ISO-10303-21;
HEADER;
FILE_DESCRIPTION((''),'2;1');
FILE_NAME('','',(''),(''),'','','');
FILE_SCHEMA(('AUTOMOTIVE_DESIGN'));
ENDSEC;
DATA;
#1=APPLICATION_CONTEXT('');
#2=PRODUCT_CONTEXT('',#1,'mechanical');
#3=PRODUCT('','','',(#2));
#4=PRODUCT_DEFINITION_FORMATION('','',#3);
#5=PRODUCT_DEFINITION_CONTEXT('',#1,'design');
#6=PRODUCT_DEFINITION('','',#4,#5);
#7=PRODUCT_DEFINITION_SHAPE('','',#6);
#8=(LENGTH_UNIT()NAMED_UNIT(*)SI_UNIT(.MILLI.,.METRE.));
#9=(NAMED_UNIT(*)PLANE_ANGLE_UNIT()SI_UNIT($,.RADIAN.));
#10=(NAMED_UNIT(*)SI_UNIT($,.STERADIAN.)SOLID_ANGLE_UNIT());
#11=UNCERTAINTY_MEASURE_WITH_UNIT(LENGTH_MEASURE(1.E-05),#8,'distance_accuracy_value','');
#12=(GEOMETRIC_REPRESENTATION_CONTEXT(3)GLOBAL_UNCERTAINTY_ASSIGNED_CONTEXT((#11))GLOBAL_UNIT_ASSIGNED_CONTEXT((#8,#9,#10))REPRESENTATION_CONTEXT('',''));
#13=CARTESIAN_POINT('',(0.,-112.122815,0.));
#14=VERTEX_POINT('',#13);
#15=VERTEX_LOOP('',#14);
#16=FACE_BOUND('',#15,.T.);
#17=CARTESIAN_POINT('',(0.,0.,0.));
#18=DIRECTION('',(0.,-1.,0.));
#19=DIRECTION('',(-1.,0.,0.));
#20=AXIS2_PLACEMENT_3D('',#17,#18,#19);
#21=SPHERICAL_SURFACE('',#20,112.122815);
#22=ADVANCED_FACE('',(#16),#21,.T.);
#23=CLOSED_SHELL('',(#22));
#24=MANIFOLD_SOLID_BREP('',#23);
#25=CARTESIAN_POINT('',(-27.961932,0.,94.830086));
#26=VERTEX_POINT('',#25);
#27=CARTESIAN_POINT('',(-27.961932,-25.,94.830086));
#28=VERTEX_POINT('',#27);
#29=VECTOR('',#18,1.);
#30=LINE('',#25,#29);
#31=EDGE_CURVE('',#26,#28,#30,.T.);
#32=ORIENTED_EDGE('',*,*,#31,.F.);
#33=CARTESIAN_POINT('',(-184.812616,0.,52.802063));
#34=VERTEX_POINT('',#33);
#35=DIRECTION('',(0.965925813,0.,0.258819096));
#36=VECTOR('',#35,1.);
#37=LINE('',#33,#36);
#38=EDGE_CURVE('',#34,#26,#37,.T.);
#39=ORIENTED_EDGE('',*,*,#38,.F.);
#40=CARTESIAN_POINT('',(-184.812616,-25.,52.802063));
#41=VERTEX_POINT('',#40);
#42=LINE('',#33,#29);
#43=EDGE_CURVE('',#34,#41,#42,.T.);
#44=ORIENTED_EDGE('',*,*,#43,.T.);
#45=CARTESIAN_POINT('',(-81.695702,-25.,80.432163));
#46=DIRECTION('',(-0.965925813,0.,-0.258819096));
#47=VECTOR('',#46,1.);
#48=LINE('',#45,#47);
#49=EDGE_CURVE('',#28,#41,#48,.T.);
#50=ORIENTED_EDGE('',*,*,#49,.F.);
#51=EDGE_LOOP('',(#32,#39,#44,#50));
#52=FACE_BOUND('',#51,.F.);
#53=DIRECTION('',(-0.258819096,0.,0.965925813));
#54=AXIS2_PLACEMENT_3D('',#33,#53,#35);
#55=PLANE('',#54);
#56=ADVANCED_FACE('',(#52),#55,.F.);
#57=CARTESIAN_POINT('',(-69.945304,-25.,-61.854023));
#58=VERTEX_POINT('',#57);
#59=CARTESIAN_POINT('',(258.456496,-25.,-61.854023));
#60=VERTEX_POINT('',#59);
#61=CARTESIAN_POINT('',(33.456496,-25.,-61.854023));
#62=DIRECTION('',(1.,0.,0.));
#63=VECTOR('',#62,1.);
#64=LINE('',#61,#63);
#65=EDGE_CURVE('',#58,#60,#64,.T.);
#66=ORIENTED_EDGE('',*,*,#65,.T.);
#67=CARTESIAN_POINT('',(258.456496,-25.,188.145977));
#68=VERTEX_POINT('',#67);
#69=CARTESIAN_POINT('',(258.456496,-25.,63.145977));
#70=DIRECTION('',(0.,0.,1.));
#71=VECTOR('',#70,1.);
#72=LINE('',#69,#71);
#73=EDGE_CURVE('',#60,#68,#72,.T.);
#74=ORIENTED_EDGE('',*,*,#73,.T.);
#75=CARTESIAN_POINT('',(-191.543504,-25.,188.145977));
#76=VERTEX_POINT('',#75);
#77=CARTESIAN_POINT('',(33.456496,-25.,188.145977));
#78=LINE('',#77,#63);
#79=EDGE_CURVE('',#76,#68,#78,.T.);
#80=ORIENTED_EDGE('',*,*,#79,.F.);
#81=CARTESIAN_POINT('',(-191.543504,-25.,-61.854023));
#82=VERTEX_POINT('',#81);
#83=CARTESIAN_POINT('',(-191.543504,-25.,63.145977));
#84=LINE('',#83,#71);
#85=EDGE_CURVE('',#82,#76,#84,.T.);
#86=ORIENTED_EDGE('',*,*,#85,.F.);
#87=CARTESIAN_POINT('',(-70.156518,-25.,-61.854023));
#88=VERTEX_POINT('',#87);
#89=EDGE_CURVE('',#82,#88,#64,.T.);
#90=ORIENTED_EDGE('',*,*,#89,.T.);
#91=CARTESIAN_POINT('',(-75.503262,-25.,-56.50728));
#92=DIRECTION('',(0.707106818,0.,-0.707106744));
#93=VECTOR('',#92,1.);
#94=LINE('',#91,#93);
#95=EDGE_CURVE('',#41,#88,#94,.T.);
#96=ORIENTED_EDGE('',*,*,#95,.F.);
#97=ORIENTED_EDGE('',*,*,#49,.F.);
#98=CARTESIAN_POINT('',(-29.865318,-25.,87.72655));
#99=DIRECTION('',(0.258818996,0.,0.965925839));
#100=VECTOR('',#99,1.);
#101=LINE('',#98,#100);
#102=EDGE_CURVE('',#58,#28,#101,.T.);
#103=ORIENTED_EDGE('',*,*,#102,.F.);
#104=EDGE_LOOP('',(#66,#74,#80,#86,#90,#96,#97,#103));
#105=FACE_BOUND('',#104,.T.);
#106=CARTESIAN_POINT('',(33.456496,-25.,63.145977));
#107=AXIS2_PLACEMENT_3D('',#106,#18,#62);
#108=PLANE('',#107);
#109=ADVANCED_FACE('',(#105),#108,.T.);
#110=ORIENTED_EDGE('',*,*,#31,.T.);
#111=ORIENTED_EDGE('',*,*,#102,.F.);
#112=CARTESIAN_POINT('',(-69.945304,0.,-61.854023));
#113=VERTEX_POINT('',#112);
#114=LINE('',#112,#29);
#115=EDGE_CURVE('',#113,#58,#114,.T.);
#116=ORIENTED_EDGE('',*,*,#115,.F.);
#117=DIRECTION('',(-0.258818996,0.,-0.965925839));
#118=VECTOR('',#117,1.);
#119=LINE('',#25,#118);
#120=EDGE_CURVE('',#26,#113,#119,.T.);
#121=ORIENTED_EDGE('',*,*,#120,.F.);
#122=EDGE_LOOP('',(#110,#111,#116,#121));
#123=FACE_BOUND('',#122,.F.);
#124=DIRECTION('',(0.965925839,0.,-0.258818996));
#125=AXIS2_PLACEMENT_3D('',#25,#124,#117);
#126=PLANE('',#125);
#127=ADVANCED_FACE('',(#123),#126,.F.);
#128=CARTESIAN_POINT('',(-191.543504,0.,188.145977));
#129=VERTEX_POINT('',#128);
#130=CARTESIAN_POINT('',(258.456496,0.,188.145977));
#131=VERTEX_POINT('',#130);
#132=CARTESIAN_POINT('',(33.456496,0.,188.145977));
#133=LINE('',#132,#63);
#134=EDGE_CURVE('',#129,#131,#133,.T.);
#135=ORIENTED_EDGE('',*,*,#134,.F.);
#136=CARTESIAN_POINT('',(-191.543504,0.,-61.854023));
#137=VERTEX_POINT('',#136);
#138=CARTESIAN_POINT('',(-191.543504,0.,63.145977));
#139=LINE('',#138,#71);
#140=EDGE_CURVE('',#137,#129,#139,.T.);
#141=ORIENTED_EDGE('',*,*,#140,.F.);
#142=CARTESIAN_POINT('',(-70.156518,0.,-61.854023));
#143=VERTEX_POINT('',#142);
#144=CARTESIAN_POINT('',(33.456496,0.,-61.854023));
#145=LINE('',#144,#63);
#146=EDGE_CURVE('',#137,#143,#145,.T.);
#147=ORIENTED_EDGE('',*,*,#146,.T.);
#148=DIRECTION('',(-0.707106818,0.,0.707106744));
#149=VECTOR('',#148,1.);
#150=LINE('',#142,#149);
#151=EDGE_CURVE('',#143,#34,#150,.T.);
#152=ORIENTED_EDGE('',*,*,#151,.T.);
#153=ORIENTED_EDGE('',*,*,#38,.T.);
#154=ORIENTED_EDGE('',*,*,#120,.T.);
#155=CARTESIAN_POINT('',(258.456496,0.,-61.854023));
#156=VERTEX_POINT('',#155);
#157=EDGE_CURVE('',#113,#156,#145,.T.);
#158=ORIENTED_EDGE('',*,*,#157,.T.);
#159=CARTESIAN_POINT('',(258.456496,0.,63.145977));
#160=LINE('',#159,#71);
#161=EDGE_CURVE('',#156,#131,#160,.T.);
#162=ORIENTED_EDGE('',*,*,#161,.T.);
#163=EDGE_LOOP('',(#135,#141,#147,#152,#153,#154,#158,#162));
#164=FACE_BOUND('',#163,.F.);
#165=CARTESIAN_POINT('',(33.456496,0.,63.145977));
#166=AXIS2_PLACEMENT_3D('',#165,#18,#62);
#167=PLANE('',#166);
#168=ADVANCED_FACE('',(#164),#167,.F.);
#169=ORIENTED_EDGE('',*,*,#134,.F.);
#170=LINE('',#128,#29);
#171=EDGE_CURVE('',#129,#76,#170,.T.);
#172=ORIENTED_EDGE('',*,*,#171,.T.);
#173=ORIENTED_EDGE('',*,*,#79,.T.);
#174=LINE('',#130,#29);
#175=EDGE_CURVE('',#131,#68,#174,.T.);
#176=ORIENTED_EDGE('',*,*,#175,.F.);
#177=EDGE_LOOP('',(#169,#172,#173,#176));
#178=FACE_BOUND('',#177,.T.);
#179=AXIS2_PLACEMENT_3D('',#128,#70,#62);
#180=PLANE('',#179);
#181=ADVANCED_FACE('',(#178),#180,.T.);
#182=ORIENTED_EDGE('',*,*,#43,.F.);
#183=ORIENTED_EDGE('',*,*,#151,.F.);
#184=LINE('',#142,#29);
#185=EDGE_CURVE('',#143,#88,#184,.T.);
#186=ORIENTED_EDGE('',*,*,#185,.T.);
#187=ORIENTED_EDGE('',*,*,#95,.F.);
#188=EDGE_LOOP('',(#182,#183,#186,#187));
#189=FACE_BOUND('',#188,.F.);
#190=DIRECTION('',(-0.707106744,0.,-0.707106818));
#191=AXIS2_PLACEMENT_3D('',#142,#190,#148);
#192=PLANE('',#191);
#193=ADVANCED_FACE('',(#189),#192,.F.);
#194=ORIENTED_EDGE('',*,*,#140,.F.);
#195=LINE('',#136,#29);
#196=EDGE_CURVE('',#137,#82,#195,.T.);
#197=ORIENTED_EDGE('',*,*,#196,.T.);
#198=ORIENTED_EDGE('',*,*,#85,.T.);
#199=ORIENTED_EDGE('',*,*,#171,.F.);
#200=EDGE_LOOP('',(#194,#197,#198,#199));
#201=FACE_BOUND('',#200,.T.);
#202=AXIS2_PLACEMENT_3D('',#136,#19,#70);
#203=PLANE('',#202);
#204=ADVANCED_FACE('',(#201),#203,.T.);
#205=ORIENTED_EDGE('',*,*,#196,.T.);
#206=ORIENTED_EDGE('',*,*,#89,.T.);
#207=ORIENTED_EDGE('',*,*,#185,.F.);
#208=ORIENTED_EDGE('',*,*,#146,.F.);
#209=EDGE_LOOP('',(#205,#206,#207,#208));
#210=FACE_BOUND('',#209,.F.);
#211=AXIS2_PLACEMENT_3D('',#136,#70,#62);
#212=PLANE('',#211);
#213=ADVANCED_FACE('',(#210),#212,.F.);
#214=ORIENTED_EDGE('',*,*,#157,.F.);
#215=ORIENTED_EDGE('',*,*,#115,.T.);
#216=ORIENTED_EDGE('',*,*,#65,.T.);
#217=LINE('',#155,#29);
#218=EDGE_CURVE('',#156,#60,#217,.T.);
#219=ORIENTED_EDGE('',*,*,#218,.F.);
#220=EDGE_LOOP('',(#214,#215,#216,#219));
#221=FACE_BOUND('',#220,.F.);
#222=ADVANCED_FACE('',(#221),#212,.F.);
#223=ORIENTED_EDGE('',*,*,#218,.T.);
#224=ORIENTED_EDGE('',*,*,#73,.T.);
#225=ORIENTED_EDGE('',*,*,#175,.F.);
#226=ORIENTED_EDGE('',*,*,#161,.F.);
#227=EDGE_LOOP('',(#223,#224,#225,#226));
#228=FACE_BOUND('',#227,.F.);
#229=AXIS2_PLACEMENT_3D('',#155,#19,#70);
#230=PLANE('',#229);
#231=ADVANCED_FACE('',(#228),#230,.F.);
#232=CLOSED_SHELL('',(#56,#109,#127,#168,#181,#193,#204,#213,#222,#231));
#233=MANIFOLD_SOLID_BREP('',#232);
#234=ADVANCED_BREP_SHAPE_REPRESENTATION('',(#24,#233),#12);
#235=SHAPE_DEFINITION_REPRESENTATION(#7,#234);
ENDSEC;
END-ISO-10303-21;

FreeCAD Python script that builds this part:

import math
import FreeCAD as App
import Part
import Sketcher

V = App.Vector
Q = App.Units.Quantity


def add_polygon(sketch, points):
    """Adds a closed chain of lines whose ends are joined by coincident constraints."""
    first, n = sketch.GeometryCount, len(points)
    for a, b in zip(points, points[1:] + points[:1]):
        sketch.addGeometry(Part.LineSegment(App.Vector(*a, 0), App.Vector(*b, 0)), False)
    for i in range(n):
        sketch.addConstraint(Sketcher.Constraint("Coincident", first + i, 2, first + (i + 1) % n, 1))

doc = App.newDocument("Part")
body = doc.addObject("PartDesign::Body", "Body")

# Sketch on XZ plane
sketch1 = body.newObject("Sketcher::SketchObject", "Sketch")
sketch1.AttachmentSupport = (doc.getObject("XZ_Plane"), [""])
sketch1.MapMode = "FlatFace"
add_polygon(sketch1, [(-191.543504, 188.145977), (-191.543504, -61.854023), (258.456496, -61.854023), (258.456496, 188.145977)])  # lines 0-3
sketch1.addConstraint([
    Sketcher.Constraint("Vertical", 0),
    Sketcher.Constraint("Horizontal", 1),
    Sketcher.Constraint("Vertical", 2),
    Sketcher.Constraint("Horizontal", 3),
    Sketcher.Constraint("DistanceX", 1, 1, 1, 2, Q("450 mm")),
    Sketcher.Constraint("DistanceY", 0, 2, 0, 1, Q("250 mm")),
    Sketcher.Constraint("DistanceX", 0, 2, -1, 1, Q("191.543504 mm")),
    Sketcher.Constraint("DistanceY", 0, 2, -1, 1, Q("61.854023 mm")),
])
pad1 = body.newObject("PartDesign::Pad", "Pad")
pad1.Profile = sketch1
pad1.Length = 25

# Sketch on XZ plane
sketch2 = body.newObject("Sketcher::SketchObject", "Sketch001")
sketch2.AttachmentSupport = (doc.getObject("XZ_Plane"), [""])
sketch2.MapMode = "FlatFace"
add_polygon(sketch2, [(-70.156518, -61.854023), (-184.812616, 52.802063), (-27.961932, 94.830086), (-69.945304, -61.854023)])  # lines 0-3
sketch2.addConstraint([
    Sketcher.Constraint("Horizontal", 3),
    Sketcher.Constraint("Angle", 0, Q("135.000003 deg")),
    Sketcher.Constraint("Angle", 1, Q("15.000003 deg")),
    Sketcher.Constraint("Angle", 2, Q("-104.999997 deg")),
    Sketcher.Constraint("Distance", 0, Q("162.1482 mm")),
    Sketcher.Constraint("Distance", 1, Q("162.383779 mm")),
    Sketcher.Constraint("DistanceX", 3, 2, -1, 1, Q("70.156518 mm")),
    Sketcher.Constraint("DistanceY", -1, 1, 0, 2, Q("52.802063 mm")),
])
pocket1 = body.newObject("PartDesign::Pocket", "Pocket")
pocket1.Profile = sketch2
pocket1.Length = 50
pocket1.Reversed = True
body2 = doc.addObject("PartDesign::Body", "Body001")

# Sketch on XY plane
sketch3 = body2.newObject("Sketcher::SketchObject", "Sketch002")
sketch3.AttachmentSupport = (doc.getObject("XY_Plane001"), [""])
sketch3.MapMode = "FlatFace"
sketch3.addGeometry([
    Part.ArcOfCircle(Part.Circle(V(0, 0, 0), V(0, 0, 1), 112.122815), math.radians(90), math.radians(270)),
    Part.LineSegment(V(0, -112.122815, 0), V(0, 112.122815, 0)),
], False)
sketch3.addConstraint([
    Sketcher.Constraint("Coincident", 0, 1, 1, 2),
    Sketcher.Constraint("Coincident", 1, 1, 0, 2),
    Sketcher.Constraint("Vertical", 1),
    Sketcher.Constraint("Coincident", 0, 3, -1, 1),
    Sketcher.Constraint("PointOnObject", 0, 1, -2),
    Sketcher.Constraint("Radius", 0, Q("112.122815 mm")),
])
revolution = body2.newObject("PartDesign::Revolution", "Revolution")
revolution.Profile = sketch3
revolution.ReferenceAxis = (sketch3, ["V_Axis"])
revolution.Angle = 360

doc.recompute()
